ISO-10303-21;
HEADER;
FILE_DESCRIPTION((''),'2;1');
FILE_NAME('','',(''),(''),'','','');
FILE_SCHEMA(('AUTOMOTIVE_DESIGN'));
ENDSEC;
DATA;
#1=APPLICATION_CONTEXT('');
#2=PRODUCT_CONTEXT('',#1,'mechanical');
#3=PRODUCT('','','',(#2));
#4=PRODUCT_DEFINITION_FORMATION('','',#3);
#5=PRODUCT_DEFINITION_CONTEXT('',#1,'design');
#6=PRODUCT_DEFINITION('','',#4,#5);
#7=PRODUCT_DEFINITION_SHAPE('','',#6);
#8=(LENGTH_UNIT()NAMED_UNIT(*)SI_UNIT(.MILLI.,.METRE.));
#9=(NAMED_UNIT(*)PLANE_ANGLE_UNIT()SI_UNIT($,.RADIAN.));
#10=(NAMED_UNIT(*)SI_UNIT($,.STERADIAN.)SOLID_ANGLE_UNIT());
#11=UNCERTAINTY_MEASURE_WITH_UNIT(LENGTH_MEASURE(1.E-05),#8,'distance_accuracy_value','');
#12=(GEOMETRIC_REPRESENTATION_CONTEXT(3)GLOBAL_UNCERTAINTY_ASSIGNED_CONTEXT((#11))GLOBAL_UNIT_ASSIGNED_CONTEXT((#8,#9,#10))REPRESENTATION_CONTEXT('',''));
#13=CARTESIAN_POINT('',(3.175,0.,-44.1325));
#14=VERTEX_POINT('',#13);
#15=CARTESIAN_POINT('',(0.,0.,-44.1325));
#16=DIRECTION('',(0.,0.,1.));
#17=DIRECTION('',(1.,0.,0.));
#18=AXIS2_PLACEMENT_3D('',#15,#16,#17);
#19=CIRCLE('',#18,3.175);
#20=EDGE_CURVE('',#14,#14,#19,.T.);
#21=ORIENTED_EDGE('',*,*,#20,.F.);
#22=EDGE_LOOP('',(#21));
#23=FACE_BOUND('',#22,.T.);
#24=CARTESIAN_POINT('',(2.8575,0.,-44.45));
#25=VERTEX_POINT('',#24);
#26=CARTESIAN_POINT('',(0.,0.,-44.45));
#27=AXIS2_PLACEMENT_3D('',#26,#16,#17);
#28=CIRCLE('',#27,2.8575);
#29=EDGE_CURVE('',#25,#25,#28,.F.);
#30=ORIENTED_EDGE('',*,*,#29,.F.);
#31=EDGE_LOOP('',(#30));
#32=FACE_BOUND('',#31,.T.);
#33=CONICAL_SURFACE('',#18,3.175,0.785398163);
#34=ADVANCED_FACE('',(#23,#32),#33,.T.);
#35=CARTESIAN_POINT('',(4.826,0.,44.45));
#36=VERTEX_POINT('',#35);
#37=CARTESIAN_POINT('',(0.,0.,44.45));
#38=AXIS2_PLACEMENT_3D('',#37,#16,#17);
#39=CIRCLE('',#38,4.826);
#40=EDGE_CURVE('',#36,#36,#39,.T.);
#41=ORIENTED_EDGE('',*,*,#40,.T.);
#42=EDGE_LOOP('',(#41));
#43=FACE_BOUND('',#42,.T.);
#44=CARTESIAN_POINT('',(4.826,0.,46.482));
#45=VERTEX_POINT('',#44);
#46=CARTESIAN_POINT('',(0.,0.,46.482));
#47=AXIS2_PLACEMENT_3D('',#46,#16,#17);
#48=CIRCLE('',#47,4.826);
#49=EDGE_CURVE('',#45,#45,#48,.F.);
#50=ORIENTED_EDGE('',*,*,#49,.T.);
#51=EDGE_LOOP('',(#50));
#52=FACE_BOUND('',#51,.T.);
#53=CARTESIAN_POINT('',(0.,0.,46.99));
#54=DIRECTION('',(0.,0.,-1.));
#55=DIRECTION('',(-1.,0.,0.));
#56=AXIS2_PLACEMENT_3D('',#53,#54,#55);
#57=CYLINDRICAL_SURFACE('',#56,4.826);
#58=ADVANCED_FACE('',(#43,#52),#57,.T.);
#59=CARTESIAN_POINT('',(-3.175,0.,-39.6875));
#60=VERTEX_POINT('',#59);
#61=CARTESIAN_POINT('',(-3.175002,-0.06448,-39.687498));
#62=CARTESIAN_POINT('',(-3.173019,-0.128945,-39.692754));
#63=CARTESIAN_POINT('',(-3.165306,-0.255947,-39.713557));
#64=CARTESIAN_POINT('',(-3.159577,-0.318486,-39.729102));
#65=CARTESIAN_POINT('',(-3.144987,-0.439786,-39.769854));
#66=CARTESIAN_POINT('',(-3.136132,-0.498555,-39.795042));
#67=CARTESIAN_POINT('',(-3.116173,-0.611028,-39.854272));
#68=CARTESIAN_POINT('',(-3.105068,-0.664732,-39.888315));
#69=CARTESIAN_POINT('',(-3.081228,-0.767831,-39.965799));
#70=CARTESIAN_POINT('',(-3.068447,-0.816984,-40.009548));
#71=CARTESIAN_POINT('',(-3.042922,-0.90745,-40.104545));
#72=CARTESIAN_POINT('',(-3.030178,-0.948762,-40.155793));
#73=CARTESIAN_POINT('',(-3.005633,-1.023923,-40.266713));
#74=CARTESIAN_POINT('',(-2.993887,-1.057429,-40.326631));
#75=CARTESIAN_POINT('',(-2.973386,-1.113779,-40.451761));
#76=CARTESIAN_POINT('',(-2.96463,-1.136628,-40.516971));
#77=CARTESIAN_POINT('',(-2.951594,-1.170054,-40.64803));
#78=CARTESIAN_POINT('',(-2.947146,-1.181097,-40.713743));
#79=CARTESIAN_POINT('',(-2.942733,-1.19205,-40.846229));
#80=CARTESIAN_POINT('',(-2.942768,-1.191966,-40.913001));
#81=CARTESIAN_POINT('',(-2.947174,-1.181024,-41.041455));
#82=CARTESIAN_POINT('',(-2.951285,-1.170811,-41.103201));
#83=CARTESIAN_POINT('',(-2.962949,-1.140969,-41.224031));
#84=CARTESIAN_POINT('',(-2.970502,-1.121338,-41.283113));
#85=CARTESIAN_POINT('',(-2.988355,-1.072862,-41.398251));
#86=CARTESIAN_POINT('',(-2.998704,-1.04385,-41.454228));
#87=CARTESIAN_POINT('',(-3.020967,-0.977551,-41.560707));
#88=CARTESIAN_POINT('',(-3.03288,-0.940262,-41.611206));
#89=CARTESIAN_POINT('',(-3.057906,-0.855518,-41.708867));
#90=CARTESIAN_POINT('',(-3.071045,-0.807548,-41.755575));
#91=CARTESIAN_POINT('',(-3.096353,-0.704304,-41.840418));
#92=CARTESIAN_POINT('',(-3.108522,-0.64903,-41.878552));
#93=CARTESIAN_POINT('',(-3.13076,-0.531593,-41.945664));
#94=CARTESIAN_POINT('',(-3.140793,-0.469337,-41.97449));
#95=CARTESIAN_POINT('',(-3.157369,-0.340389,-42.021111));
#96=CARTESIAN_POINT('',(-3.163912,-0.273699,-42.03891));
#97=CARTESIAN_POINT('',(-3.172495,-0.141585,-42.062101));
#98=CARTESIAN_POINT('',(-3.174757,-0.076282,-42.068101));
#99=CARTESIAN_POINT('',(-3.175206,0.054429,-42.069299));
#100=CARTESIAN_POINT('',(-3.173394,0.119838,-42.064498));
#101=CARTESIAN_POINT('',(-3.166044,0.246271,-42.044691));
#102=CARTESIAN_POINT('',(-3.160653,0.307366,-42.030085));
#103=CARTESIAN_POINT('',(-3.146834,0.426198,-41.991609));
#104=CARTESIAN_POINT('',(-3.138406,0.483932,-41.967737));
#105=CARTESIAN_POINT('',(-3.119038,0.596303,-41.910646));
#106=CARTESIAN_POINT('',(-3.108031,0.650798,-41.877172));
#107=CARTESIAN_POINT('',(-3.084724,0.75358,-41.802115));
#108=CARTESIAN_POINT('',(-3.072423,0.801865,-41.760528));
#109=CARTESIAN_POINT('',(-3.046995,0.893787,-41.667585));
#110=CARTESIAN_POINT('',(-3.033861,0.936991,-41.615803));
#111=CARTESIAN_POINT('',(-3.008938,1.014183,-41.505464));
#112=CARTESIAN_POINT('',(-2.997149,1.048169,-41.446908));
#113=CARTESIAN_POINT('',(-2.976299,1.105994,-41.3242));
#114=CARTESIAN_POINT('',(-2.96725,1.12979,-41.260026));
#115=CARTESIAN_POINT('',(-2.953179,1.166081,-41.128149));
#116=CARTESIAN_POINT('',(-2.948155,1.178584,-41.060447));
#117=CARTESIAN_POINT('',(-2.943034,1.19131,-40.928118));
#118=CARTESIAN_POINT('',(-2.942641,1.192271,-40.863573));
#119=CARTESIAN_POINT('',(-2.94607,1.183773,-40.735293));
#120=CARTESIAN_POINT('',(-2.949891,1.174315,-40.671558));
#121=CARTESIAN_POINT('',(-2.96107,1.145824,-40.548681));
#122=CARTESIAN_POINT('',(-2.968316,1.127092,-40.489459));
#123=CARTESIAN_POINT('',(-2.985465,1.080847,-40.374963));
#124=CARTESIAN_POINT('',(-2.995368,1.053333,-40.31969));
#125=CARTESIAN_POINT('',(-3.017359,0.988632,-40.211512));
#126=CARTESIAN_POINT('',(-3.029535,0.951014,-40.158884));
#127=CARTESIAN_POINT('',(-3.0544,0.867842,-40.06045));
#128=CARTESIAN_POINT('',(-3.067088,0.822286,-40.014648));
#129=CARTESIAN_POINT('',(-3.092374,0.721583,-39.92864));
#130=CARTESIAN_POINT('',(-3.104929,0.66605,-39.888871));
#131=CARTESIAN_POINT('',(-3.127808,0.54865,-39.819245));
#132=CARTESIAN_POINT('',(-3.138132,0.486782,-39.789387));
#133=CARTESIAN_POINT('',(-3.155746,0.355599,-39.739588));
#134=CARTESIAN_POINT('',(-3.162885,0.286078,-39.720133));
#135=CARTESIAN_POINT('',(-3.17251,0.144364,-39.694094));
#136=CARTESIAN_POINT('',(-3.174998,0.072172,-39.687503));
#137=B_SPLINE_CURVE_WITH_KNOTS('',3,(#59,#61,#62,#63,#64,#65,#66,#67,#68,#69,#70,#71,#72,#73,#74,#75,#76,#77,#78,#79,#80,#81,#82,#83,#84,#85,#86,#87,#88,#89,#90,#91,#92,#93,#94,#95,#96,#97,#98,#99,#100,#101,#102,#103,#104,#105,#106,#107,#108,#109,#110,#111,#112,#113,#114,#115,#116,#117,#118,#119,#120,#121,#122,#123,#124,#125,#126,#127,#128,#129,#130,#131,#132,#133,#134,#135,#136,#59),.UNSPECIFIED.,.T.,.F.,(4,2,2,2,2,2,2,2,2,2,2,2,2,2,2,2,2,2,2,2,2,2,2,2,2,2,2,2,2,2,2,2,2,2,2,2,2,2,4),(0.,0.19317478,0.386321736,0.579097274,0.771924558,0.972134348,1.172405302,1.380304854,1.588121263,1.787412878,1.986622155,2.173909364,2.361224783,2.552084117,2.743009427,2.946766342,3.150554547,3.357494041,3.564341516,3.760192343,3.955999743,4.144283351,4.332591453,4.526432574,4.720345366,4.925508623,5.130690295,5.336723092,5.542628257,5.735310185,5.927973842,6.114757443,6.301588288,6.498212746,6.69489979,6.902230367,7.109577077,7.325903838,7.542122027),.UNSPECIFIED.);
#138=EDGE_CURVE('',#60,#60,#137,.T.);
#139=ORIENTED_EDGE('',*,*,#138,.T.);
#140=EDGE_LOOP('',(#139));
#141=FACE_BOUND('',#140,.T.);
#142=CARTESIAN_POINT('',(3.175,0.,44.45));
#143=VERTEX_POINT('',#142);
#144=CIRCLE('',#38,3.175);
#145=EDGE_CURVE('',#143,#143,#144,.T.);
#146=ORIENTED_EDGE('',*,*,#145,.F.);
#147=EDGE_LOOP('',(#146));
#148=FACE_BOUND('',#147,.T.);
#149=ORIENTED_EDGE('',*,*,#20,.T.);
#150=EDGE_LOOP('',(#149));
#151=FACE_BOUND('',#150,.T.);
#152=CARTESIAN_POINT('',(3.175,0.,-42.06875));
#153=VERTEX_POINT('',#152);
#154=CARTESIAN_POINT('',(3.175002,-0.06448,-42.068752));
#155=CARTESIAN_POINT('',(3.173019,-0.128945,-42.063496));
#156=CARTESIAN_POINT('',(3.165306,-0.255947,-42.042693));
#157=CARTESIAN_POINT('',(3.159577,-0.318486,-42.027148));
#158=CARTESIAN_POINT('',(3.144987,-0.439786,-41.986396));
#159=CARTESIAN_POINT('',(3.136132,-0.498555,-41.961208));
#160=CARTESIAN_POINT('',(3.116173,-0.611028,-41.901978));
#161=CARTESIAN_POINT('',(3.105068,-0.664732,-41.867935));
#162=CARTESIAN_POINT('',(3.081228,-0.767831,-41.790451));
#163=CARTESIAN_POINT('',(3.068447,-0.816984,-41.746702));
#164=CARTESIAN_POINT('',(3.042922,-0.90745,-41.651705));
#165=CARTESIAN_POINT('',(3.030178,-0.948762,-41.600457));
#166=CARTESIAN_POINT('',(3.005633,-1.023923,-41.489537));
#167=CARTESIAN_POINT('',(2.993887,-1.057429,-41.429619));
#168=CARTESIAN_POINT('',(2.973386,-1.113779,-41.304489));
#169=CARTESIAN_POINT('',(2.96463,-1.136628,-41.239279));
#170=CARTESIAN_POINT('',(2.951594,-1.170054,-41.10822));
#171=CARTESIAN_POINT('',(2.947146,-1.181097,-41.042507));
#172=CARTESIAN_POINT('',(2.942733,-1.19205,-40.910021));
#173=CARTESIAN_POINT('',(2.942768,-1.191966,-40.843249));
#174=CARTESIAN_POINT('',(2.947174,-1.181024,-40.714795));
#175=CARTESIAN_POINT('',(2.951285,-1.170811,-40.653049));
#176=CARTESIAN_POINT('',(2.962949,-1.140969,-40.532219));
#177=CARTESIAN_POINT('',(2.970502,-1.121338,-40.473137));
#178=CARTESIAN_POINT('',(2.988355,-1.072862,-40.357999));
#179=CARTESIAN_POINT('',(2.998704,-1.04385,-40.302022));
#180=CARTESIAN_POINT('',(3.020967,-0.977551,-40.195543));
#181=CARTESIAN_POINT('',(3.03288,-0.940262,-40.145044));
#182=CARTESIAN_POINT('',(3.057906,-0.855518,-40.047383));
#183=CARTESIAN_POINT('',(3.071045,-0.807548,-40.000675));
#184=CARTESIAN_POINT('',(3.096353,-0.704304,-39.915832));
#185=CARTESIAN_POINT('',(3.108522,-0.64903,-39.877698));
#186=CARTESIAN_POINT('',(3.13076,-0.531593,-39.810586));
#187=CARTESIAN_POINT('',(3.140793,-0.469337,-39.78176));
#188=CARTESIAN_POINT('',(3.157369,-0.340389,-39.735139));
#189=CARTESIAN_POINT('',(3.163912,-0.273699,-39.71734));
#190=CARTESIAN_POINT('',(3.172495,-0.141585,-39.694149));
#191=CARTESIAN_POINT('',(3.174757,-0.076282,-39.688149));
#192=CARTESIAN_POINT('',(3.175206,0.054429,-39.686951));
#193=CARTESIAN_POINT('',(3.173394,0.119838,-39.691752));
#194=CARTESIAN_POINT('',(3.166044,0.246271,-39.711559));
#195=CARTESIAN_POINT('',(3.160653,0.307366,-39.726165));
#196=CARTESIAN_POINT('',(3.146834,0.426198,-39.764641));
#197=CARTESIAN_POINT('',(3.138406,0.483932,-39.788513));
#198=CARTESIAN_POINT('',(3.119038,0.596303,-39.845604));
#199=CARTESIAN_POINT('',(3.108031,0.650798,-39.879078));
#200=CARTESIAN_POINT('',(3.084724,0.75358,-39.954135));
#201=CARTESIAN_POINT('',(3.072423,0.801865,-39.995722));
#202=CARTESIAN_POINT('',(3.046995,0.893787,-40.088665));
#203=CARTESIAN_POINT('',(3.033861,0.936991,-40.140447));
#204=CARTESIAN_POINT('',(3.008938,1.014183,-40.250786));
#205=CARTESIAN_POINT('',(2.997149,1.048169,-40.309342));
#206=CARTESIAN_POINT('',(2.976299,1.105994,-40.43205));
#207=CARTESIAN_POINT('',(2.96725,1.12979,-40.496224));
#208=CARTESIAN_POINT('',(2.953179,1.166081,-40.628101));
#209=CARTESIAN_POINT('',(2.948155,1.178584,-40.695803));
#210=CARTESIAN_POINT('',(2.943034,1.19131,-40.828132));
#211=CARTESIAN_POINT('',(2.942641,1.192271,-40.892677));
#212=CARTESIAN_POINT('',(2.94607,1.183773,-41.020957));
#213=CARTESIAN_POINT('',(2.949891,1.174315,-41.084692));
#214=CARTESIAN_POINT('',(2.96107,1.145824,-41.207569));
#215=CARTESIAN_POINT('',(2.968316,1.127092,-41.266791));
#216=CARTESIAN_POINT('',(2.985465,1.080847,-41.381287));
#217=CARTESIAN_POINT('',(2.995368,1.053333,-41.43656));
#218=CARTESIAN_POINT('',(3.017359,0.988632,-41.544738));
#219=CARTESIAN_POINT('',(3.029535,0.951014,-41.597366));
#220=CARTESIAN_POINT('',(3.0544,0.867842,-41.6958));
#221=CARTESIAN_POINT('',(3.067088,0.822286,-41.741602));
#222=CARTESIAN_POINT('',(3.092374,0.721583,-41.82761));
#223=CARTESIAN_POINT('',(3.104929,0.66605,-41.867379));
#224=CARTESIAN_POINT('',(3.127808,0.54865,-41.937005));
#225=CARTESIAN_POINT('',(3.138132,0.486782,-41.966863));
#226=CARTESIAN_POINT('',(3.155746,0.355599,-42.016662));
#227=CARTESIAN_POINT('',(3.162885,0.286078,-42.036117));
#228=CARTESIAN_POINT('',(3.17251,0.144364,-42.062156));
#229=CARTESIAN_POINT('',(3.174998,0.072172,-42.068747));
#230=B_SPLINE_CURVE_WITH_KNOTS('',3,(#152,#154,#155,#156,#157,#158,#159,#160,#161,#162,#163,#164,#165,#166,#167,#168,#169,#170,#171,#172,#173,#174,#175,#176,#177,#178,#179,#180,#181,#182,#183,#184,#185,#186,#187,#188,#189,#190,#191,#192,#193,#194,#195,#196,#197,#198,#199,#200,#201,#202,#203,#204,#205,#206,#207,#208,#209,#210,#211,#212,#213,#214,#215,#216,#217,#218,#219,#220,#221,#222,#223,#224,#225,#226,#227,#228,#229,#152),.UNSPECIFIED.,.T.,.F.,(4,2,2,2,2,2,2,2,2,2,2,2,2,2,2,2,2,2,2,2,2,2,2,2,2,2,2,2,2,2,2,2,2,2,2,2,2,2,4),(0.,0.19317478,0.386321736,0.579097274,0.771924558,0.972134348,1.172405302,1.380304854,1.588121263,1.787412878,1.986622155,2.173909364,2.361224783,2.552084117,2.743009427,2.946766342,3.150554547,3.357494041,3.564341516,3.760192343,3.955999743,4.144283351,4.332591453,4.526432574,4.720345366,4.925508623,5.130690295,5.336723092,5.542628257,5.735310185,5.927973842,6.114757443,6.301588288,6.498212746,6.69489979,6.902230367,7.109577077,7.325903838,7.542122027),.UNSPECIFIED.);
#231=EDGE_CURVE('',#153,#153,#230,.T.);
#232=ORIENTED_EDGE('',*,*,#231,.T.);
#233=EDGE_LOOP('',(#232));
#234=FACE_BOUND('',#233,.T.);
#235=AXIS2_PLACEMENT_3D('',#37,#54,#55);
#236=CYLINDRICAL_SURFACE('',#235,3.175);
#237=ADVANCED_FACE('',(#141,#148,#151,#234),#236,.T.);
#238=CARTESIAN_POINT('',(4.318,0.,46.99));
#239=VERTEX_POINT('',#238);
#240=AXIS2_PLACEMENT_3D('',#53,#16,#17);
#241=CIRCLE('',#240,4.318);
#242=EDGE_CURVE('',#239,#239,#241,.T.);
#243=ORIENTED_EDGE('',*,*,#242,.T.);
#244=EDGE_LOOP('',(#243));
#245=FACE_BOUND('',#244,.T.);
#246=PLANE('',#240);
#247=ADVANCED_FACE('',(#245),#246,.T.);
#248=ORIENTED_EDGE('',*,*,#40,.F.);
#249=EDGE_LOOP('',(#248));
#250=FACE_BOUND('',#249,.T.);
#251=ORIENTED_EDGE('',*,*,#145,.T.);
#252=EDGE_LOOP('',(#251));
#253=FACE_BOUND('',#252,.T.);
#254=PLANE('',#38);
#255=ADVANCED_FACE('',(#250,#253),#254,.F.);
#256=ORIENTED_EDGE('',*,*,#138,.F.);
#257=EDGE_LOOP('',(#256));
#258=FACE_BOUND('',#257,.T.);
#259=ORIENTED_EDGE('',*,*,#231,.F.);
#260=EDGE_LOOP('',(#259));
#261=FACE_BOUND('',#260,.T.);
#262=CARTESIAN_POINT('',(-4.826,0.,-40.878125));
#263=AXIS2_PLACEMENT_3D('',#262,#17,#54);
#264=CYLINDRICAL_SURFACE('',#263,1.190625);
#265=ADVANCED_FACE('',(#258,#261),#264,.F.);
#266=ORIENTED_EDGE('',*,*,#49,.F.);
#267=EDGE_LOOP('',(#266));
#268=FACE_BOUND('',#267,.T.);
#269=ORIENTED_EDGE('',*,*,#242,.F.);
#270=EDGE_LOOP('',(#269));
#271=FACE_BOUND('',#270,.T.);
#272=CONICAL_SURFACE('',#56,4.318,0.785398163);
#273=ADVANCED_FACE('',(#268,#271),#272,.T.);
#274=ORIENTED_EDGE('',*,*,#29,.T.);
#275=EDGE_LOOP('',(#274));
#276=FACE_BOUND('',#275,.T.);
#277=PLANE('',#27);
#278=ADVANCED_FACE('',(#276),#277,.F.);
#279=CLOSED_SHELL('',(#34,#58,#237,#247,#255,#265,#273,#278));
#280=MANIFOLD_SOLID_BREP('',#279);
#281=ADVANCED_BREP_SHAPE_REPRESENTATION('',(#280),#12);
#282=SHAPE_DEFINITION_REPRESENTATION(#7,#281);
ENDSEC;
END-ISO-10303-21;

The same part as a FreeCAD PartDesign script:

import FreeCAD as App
import Part
import Sketcher

V = App.Vector
Q = App.Units.Quantity


def edges_at(feature, points):
    """Names of the edges that pass closest to the given points."""
    edges = feature.Shape.Edges
    near = lambda p: min(range(len(edges)), key=lambda i: edges[i].distToShape(Part.Vertex(*p))[0])
    return sorted({f"Edge{near(p) + 1}" for p in points})

doc = App.newDocument("Part")
body = doc.addObject("PartDesign::Body", "Body")

# Sketch on XY plane
sketch1 = body.newObject("Sketcher::SketchObject", "Sketch")
sketch1.AttachmentSupport = (doc.getObject("XY_Plane"), [""])
sketch1.MapMode = "FlatFace"
sketch1.addGeometry(Part.Circle(V(0, 0, 0), V(0, 0, 1), 3.2), False)
sketch1.addConstraint([
    Sketcher.Constraint("Coincident", 0, 3, -1, 1),
    Sketcher.Constraint("Diameter", 0, Q("0.25 in")),
])
pad1 = body.newObject("PartDesign::Pad", "Pad")
pad1.Profile = sketch1
pad1.Length = Q("3.5 in")
pad1.Midplane = True

# Sketch on XY plane
sketch2 = body.newObject("Sketcher::SketchObject", "Sketch001")
sketch2.AttachmentSupport = (doc.getObject("XY_Plane"), [""])
sketch2.MapMode = "FlatFace"
sketch2.AttachmentOffset = App.Placement(V(0, 0, 1.75 * 25.4), App.Rotation())
sketch2.addGeometry(Part.Circle(V(0, 0, 0), V(0, 0, 1), 4.8), False)
sketch2.addConstraint([
    Sketcher.Constraint("Coincident", 0, 3, -1, 1),
    Sketcher.Constraint("Diameter", 0, Q("0.38 in")),
])
pad2 = body.newObject("PartDesign::Pad", "Pad001")
pad2.Profile = sketch2
pad2.Length = Q("0.1 in")
doc.recompute()

chamfer = body.newObject("PartDesign::Chamfer", "Chamfer")
chamfer.Base = (pad2, edges_at(pad2, [(-4.826, 0, 46.99)]))
chamfer.Size = Q("0.02 in")

# Sketch on YZ plane
sketch3 = body.newObject("Sketcher::SketchObject", "Sketch002")
sketch3.AttachmentSupport = (doc.getObject("YZ_Plane"), [""])
sketch3.MapMode = "FlatFace"
sketch3.addGeometry(Part.Circle(V(0, -40.9, 0), V(0, 0, 1), 1.2), False)
sketch3.addConstraint([
    Sketcher.Constraint("PointOnObject", 0, 3, -2),
    Sketcher.Constraint("Diameter", 0, Q("0.09375 in")),
    Sketcher.Constraint("DistanceY", 0, 3, -1, 1, Q("1.609375 in")),
])
pocket1 = body.newObject("PartDesign::Pocket", "Pocket")
pocket1.Profile = sketch3
pocket1.Type = "ThroughAll"
pocket1.Midplane = True
doc.recompute()

chamfer2 = body.newObject("PartDesign::Chamfer", "Chamfer001")
chamfer2.Base = (pocket1, edges_at(pocket1, [(-3.175, 0, -44.45)]))
chamfer2.Size = Q("0.0125 in")

doc.recompute()
